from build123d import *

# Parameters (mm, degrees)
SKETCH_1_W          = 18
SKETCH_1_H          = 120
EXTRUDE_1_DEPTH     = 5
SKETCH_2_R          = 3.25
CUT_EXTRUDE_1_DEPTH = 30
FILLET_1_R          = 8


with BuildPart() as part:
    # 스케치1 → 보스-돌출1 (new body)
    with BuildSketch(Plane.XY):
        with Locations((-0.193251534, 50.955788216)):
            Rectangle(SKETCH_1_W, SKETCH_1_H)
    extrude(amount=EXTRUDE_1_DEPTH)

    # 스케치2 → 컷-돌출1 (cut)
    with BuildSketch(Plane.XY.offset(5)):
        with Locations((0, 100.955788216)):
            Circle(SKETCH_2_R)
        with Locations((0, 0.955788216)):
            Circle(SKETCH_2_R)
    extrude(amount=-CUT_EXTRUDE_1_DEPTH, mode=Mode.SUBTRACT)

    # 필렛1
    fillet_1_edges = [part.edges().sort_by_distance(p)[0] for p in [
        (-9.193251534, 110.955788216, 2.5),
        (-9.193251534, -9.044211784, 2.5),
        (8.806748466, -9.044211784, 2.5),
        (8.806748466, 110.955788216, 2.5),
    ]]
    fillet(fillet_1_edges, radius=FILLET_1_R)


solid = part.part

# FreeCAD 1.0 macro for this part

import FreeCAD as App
import Part
import Sketcher

V = App.Vector


def edges_at(feature, points):
    """Names of the edges that pass closest to the given points."""
    edges = feature.Shape.Edges
    near = lambda p: min(range(len(edges)), key=lambda i: edges[i].distToShape(Part.Vertex(*p))[0])
    return sorted({f"Edge{near(p) + 1}" for p in points})


def add_polygon(sketch, points):
    """Adds a closed chain of lines whose ends are joined by coincident constraints."""
    first, n = sketch.GeometryCount, len(points)
    for a, b in zip(points, points[1:] + points[:1]):
        sketch.addGeometry(Part.LineSegment(App.Vector(*a, 0), App.Vector(*b, 0)), False)
    for i in range(n):
        sketch.addConstraint(Sketcher.Constraint("Coincident", first + i, 2, first + (i + 1) % n, 1))

doc = App.newDocument("Part")
params = doc.addObject("Spreadsheet::Sheet", "Params")
for row, (alias, value) in enumerate([
    ("sketch1_width", "18 mm"),
    ("sketch1_height", "120 mm"),
    ("pad1_length", "5 mm"),
    ("sketch2_diameter", "6.5 mm"),
    ("pocket1_length", "30 mm"),
    ("fillet_radius", "8 mm"),
], start=1):
    params.set(f"A{row}", alias)
    params.set(f"B{row}", "=" + value)
    params.setAlias(f"B{row}", alias)

body = doc.addObject("PartDesign::Body", "Body")

sketch1 = body.newObject("Sketcher::SketchObject", "Sketch")
sketch1.AttachmentSupport = (doc.getObject("XY_Plane"), [""])
sketch1.MapMode = "FlatFace"
add_polygon(sketch1, [(-9, 111), (-9, -9), (9, -9), (9, 111)])
sketch1.addConstraint(Sketcher.Constraint("Vertical", 0))
sketch1.addConstraint(Sketcher.Constraint("Horizontal", 1))
sketch1.addConstraint(Sketcher.Constraint("Vertical", 2))
sketch1.addConstraint(Sketcher.Constraint("Horizontal", 3))
sketch1.addConstraint(Sketcher.Constraint("DistanceX", 1, 1, 1, 2, 18.0))
sketch1.addConstraint(Sketcher.Constraint("DistanceY", 0, 2, 0, 1, 120.0))
sketch1.addConstraint(Sketcher.Constraint("DistanceX", 0, 2, -1, 1, 9.193252))
sketch1.addConstraint(Sketcher.Constraint("DistanceY", 0, 2, -1, 1, 9.044212))
sketch1.setExpression("Constraints[8]", "Params.sketch1_width")
sketch1.setExpression("Constraints[9]", "Params.sketch1_height")
pad1 = body.newObject("PartDesign::Pad", "Pad")
pad1.Profile = sketch1
pad1.setExpression("Length", "Params.pad1_length")

sketch2 = body.newObject("Sketcher::SketchObject", "Sketch001")
sketch2.AttachmentSupport = (doc.getObject("XY_Plane"), [""])
sketch2.MapMode = "FlatFace"
sketch2.AttachmentOffset = App.Placement(V(0, 0, 5), App.Rotation())
sketch2.addGeometry(Part.Circle(V(0, 101, 0), V(0, 0, 1), 3.2), False)
sketch2.addGeometry(Part.Circle(V(0, 1, 0), V(0, 0, 1), 3.2), False)
sketch2.addConstraint(Sketcher.Constraint("Equal", 0, 1))
sketch2.addConstraint(Sketcher.Constraint("PointOnObject", 0, 3, -2))
sketch2.addConstraint(Sketcher.Constraint("PointOnObject", 1, 3, -2))
sketch2.addConstraint(Sketcher.Constraint("Diameter", 0, 6.5))
sketch2.addConstraint(Sketcher.Constraint("DistanceY", 1, 3, 0, 3, 100.0))
sketch2.addConstraint(Sketcher.Constraint("DistanceY", -1, 1, 0, 3, 100.955788))
sketch2.setExpression("Constraints[3]", "Params.sketch2_diameter")
pocket1 = body.newObject("PartDesign::Pocket", "Pocket")
pocket1.Profile = sketch2
pocket1.setExpression("Length", "Params.pocket1_length")
doc.recompute()

fillet = body.newObject("PartDesign::Fillet", "Fillet")
fillet.Base = (pocket1, edges_at(pocket1, [
    (-9.193, 110.956, 2.5),
    (-9.193, -9.044, 2.5),
    (8.807, -9.044, 2.5),
    (8.807, 110.956, 2.5),
]))
fillet.setExpression("Radius", "Params.fillet_radius")

doc.recompute()
